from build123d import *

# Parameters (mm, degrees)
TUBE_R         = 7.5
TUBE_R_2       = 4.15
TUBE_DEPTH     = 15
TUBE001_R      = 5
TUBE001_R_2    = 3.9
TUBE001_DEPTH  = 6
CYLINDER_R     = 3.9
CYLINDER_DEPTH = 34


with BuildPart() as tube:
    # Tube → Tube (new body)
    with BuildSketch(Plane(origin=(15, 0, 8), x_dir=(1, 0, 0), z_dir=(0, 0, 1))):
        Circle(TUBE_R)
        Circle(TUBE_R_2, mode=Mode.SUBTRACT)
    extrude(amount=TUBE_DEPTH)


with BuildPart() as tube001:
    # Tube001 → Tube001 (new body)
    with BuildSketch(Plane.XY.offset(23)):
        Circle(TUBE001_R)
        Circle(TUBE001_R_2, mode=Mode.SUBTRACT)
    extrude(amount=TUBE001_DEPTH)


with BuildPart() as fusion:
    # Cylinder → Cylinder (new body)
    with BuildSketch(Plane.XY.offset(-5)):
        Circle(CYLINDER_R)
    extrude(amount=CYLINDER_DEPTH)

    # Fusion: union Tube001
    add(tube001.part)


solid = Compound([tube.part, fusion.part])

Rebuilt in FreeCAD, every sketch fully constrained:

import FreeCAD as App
import Part
import Sketcher
from FreeCAD import Vector
Q = App.Units.Quantity

doc = App.newDocument("Part")
body = doc.addObject("PartDesign::Body", "Body")

# Sketch on XY plane
sketch1 = body.newObject("Sketcher::SketchObject", "Sketch")
sketch1.AttachmentSupport = (doc.getObject("XY_Plane"), [""])
sketch1.MapMode = "FlatFace"
sketch1.AttachmentOffset = App.Placement(Vector(0, 0, 8), App.Rotation())
sketch1.addGeometry([
    Part.Circle(Vector(15, 0, 0), Vector(0, 0, 1), 7.5),
    Part.Circle(Vector(15, 0, 0), Vector(0, 0, 1), 4.2),
], False)
sketch1.addConstraint([
    Sketcher.Constraint("Coincident", 1, 3, 0, 3),
    Sketcher.Constraint("PointOnObject", 0, 3, -1),
    Sketcher.Constraint("Diameter", 0, Q("15 mm")),
    Sketcher.Constraint("Diameter", 1, Q("8.3 mm")),
    Sketcher.Constraint("DistanceX", -1, 1, 0, 3, Q("15 mm")),
])
pad1 = body.newObject("PartDesign::Pad", "Pad")
pad1.Profile = sketch1
pad1.Length = 15
body2 = doc.addObject("PartDesign::Body", "Body001")

# Sketch on XY plane
sketch2 = body2.newObject("Sketcher::SketchObject", "Sketch001")
sketch2.AttachmentSupport = (doc.getObject("XY_Plane001"), [""])
sketch2.MapMode = "FlatFace"
sketch2.AttachmentOffset = App.Placement(Vector(0, 0, 23), App.Rotation())
sketch2.addGeometry([
    Part.Circle(Vector(0, 0, 0), Vector(0, 0, 1), 5),
    Part.Circle(Vector(0, 0, 0), Vector(0, 0, 1), 3.9),
], False)
sketch2.addConstraint([
    Sketcher.Constraint("Coincident", 0, 3, -1, 1),
    Sketcher.Constraint("Coincident", 1, 3, -1, 1),
    Sketcher.Constraint("Diameter", 0, Q("10 mm")),
    Sketcher.Constraint("Diameter", 1, Q("7.8 mm")),
])
pad2 = body2.newObject("PartDesign::Pad", "Pad001")
pad2.Profile = sketch2
pad2.Length = 6
body3 = doc.addObject("PartDesign::Body", "Body002")

# Sketch on XY plane
sketch3 = body3.newObject("Sketcher::SketchObject", "Sketch002")
sketch3.AttachmentSupport = (doc.getObject("XY_Plane002"), [""])
sketch3.MapMode = "FlatFace"
sketch3.AttachmentOffset = App.Placement(Vector(0, 0, -5), App.Rotation())
sketch3.addGeometry(Part.Circle(Vector(0, 0, 0), Vector(0, 0, 1), 3.9), False)
sketch3.addConstraint([
    Sketcher.Constraint("Coincident", 0, 3, -1, 1),
    Sketcher.Constraint("Diameter", 0, Q("7.8 mm")),
])
pad3 = body3.newObject("PartDesign::Pad", "Pad002")
pad3.Profile = sketch3
pad3.Length = 34
doc.recompute()

boolean = body3.newObject("PartDesign::Boolean", "Boolean")
boolean.Type = "Fuse"
boolean.addObjects([body2])

doc.recompute()
